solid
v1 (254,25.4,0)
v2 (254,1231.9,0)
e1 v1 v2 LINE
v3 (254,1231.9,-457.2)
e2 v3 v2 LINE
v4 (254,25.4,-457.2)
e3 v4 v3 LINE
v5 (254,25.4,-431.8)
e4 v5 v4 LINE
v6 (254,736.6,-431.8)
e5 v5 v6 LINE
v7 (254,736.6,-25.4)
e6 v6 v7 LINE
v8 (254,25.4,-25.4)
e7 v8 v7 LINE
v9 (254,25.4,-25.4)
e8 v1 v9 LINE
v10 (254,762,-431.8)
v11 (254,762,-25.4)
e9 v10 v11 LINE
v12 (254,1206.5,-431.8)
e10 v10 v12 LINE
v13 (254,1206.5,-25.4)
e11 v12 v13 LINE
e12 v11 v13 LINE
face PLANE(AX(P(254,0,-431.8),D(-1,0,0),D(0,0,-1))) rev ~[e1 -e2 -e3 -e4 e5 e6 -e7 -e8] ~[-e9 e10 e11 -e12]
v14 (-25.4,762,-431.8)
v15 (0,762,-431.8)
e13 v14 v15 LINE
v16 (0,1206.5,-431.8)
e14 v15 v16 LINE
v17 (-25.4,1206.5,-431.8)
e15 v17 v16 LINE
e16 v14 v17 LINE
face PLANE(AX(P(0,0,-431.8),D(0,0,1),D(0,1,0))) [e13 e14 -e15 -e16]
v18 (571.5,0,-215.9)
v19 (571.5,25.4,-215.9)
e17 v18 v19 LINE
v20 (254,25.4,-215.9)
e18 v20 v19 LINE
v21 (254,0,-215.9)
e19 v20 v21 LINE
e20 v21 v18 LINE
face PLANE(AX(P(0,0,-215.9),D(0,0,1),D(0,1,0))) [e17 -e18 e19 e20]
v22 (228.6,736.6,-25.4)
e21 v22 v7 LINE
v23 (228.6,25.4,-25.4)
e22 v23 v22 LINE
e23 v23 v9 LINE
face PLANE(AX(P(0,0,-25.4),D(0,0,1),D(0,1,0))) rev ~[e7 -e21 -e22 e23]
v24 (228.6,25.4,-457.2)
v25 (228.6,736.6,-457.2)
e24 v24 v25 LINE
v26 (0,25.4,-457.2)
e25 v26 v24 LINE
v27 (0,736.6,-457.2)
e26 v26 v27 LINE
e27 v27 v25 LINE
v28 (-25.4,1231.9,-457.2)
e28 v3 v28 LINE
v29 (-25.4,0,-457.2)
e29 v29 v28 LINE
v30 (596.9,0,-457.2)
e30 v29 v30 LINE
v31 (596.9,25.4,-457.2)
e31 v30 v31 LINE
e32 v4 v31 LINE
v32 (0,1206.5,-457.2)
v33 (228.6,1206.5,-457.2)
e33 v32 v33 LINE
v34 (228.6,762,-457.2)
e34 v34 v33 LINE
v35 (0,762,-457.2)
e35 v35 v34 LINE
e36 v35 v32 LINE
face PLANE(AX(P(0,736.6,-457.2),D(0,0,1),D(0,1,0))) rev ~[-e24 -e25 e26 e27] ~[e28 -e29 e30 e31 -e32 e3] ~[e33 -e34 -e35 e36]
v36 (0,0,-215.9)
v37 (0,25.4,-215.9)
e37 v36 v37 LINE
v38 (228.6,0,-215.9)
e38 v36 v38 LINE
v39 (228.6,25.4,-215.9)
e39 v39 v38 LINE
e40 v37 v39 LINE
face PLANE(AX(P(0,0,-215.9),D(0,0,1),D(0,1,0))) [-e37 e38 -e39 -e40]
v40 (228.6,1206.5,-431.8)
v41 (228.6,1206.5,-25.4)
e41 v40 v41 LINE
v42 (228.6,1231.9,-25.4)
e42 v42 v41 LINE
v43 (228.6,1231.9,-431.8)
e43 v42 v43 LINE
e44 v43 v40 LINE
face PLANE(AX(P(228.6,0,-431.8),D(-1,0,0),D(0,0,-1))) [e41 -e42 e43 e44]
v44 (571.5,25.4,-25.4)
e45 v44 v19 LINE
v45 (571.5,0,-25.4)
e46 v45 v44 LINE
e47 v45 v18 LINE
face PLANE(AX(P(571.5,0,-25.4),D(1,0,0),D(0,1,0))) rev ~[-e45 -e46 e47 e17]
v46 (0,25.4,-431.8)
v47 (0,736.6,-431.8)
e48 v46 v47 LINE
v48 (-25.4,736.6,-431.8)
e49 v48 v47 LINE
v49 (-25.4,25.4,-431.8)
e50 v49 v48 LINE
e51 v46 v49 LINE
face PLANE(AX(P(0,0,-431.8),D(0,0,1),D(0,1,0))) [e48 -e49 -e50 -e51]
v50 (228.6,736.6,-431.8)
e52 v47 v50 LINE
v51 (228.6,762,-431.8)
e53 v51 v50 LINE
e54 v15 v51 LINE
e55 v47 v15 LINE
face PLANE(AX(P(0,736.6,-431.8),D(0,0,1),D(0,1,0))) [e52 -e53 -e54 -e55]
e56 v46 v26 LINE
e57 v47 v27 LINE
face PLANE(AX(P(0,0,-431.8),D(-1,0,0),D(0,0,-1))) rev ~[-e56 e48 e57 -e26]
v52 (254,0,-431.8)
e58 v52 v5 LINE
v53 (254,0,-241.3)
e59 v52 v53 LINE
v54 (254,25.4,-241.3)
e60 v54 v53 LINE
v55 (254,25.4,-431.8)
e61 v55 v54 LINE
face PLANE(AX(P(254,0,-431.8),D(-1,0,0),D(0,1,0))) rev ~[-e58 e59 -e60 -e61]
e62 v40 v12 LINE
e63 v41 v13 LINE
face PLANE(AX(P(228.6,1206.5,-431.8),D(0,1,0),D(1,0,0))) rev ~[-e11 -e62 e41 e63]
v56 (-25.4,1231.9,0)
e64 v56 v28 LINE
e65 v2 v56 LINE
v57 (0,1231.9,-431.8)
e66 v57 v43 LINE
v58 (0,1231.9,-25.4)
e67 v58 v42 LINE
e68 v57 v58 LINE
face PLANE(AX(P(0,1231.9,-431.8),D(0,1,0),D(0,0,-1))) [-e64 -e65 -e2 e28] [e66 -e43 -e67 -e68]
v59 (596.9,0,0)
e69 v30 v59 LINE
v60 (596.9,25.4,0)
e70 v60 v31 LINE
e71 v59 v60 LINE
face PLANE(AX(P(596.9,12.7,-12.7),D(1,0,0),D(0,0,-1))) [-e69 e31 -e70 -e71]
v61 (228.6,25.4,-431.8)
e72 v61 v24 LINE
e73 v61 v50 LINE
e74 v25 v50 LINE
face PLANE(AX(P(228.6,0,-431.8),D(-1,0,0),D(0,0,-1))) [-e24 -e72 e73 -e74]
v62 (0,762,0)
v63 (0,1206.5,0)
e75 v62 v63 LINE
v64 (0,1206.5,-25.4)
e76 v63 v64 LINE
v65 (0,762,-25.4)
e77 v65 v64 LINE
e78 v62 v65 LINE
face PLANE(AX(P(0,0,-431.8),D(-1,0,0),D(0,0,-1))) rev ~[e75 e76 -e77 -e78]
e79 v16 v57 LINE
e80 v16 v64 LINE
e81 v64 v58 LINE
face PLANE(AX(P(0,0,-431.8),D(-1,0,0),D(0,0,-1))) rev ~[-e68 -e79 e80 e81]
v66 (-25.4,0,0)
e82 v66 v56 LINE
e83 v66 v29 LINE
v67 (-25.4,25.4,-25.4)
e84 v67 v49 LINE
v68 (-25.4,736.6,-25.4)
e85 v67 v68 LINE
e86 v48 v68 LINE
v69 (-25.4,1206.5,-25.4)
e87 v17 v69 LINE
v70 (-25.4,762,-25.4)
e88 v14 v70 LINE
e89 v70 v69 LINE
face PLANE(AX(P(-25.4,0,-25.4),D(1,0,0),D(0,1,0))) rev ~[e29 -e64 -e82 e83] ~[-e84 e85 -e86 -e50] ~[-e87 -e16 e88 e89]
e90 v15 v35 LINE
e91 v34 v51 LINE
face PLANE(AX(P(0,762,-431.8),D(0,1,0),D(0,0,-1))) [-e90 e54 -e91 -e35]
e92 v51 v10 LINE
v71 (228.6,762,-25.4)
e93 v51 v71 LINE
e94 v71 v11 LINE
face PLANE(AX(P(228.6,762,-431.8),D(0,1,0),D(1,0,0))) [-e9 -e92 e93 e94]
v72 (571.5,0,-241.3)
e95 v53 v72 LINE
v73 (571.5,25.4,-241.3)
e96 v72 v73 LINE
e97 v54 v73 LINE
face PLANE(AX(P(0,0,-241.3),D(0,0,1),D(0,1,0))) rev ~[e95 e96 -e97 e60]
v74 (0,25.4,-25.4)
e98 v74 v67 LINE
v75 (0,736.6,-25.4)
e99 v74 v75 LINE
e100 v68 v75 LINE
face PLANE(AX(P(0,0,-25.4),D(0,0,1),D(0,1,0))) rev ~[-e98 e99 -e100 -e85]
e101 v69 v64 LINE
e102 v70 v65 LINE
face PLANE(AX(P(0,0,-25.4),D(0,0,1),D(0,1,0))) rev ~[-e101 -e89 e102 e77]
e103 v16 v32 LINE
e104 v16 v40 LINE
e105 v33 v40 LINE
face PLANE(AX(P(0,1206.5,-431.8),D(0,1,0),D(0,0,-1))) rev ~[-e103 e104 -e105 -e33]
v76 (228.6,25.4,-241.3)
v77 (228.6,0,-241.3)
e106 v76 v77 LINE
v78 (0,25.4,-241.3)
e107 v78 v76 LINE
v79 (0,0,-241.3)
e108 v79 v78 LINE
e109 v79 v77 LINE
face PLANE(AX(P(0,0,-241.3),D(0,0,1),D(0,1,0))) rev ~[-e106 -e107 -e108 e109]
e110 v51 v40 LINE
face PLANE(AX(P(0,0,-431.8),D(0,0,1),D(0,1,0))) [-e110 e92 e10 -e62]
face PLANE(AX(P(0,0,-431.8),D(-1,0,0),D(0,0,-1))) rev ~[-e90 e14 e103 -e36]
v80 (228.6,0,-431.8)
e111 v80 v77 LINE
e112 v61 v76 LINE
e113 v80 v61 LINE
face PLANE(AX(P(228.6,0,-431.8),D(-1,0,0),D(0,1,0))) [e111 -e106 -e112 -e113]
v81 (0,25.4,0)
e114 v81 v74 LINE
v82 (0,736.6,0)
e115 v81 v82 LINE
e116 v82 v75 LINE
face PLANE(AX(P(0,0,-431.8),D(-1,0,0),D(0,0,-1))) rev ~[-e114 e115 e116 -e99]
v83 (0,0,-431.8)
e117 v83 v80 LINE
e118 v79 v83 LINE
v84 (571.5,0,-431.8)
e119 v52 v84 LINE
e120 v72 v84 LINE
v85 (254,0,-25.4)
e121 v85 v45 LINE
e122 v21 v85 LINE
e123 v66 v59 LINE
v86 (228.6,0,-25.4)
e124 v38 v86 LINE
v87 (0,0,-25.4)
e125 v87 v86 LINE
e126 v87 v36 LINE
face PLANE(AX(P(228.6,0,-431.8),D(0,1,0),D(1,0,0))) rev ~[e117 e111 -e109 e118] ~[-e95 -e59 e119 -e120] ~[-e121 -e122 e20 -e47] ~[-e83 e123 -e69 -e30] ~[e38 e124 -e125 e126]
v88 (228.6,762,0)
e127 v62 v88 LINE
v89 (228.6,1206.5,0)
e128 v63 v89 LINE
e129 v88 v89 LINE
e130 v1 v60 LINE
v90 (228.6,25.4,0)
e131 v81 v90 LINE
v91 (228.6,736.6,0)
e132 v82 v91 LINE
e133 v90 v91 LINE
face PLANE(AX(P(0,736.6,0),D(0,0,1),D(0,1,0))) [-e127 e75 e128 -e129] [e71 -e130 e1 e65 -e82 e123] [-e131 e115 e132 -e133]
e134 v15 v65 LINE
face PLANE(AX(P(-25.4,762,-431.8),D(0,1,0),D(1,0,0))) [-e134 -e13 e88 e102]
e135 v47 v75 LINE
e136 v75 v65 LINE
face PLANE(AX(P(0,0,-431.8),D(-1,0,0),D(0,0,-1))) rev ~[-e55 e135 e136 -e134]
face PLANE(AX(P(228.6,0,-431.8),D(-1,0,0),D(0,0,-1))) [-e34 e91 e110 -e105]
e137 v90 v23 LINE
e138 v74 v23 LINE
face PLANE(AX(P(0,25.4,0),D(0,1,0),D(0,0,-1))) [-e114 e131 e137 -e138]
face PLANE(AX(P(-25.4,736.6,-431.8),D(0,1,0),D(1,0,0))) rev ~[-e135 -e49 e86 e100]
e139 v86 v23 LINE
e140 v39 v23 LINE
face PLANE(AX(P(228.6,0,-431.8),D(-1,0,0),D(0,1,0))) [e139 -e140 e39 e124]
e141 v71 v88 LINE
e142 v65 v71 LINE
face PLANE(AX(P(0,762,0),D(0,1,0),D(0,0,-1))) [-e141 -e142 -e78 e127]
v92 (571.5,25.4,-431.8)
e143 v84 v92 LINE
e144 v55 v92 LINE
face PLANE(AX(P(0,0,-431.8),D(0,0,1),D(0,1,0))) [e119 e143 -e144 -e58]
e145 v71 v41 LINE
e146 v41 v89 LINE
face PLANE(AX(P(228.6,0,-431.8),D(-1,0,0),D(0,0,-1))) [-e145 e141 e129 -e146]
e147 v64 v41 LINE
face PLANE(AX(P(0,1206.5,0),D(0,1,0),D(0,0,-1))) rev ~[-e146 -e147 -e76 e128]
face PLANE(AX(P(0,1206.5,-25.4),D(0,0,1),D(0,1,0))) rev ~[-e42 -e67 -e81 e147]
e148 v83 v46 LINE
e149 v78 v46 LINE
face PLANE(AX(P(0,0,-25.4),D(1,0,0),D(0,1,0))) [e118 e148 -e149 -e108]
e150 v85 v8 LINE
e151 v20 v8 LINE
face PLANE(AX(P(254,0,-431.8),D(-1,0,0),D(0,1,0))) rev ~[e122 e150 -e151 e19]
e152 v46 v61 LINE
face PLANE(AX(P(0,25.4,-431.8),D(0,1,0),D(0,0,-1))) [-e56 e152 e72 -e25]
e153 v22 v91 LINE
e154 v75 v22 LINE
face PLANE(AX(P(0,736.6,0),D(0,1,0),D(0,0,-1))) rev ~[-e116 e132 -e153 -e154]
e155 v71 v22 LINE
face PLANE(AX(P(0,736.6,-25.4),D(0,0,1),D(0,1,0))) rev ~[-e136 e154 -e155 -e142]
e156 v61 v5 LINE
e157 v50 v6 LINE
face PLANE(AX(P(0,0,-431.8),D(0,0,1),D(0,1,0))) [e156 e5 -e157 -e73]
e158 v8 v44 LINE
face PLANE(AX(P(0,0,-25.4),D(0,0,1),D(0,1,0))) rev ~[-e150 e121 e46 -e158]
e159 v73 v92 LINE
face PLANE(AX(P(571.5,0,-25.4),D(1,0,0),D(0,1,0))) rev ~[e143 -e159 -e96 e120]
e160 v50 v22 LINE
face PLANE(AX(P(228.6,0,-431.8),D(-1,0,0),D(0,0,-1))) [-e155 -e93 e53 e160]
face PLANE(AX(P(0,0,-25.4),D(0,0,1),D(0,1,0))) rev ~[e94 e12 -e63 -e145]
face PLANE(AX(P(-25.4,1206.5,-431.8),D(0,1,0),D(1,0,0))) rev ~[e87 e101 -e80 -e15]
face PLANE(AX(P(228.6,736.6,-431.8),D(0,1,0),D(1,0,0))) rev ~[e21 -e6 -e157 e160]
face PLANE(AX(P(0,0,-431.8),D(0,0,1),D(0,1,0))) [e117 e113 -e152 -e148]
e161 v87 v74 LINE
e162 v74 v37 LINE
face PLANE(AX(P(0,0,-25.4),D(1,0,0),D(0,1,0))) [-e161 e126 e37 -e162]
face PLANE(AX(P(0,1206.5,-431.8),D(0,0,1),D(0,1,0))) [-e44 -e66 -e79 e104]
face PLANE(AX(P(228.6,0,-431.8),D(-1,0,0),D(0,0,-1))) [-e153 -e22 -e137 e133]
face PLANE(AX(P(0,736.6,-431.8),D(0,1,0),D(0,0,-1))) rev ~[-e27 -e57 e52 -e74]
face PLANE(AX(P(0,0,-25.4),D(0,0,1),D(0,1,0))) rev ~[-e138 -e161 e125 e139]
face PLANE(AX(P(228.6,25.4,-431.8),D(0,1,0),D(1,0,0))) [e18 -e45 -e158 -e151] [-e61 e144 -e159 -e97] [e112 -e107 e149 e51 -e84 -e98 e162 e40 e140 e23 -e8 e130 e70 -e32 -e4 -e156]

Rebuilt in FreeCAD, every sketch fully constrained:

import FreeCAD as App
import Part
import Sketcher
Q = App.Units.Quantity

doc = App.newDocument("Part")
body = doc.addObject("PartDesign::Body", "Body")

# Sketch on XZ plane
sketch1 = body.newObject("Sketcher::SketchObject", "Sketch")
sketch1.AttachmentSupport = (doc.getObject("XZ_Plane"), [""])
sketch1.MapMode = "FlatFace"
sketch1.addGeometry(Part.LineSegment(App.Vector(-25.4, -25.4, 0), App.Vector(-25.4, 0, 0)), False)
sketch1.addGeometry(Part.LineSegment(App.Vector(-25.4, 0, 0), App.Vector(0, 0, 0)), False)
sketch1.addGeometry(Part.LineSegment(App.Vector(0, 0, 0), App.Vector(0, -25.4, 0)), False)
sketch1.addGeometry(Part.LineSegment(App.Vector(0, -25.4, 0), App.Vector(-25.4, -25.4, 0)), False)
sketch1.addConstraint(Sketcher.Constraint("Coincident", 0, 2, 1, 1))
sketch1.addConstraint(Sketcher.Constraint("Coincident", 1, 2, 2, 1))
sketch1.addConstraint(Sketcher.Constraint("Coincident", 2, 2, 3, 1))
sketch1.addConstraint(Sketcher.Constraint("Coincident", 3, 2, 0, 1))
sketch1.addConstraint(Sketcher.Constraint("Vertical", 0))
sketch1.addConstraint(Sketcher.Constraint("Horizontal", 1))
sketch1.addConstraint(Sketcher.Constraint("Vertical", 2))
sketch1.addConstraint(Sketcher.Constraint("Horizontal", 3))
sketch1.addConstraint(Sketcher.Constraint("Coincident", 1, 2, -1, 1))
sketch1.addConstraint(Sketcher.Constraint("Equal", 3, 0))
sketch1.addConstraint(Sketcher.Constraint("DistanceX", 1, 1, 1, 2, Q("1 in")))
pad1 = body.newObject("PartDesign::Pad", "Pad")
pad1.Profile = sketch1
pad1.Length = Q("48.5 in")
pad1.Reversed = True
body2 = doc.addObject("PartDesign::Body", "Body001")

# Sketch on XZ plane
sketch2 = body2.newObject("Sketcher::SketchObject", "Sketch001")
sketch2.AttachmentSupport = (doc.getObject("XZ_Plane001"), [""])
sketch2.MapMode = "FlatFace"
sketch2.addGeometry(Part.LineSegment(App.Vector(-25.4, -457.2, 0), App.Vector(-25.4, -431.8, 0)), False)
sketch2.addGeometry(Part.LineSegment(App.Vector(-25.4, -431.8, 0), App.Vector(0, -431.8, 0)), False)
sketch2.addGeometry(Part.LineSegment(App.Vector(0, -431.8, 0), App.Vector(0, -457.2, 0)), False)
sketch2.addGeometry(Part.LineSegment(App.Vector(0, -457.2, 0), App.Vector(-25.4, -457.2, 0)), False)
sketch2.addConstraint(Sketcher.Constraint("Coincident", 0, 2, 1, 1))
sketch2.addConstraint(Sketcher.Constraint("Coincident", 1, 2, 2, 1))
sketch2.addConstraint(Sketcher.Constraint("Coincident", 2, 2, 3, 1))
sketch2.addConstraint(Sketcher.Constraint("Coincident", 3, 2, 0, 1))
sketch2.addConstraint(Sketcher.Constraint("Vertical", 0))
sketch2.addConstraint(Sketcher.Constraint("Horizontal", 1))
sketch2.addConstraint(Sketcher.Constraint("Vertical", 2))
sketch2.addConstraint(Sketcher.Constraint("Horizontal", 3))
sketch2.addConstraint(Sketcher.Constraint("PointOnObject", 1, 2, -2))
sketch2.addConstraint(Sketcher.Constraint("Equal", 3, 0))
sketch2.addConstraint(Sketcher.Constraint("DistanceX", 1, 1, 1, 2, Q("1 in")))
sketch2.addConstraint(Sketcher.Constraint("DistanceY", 0, 2, -1, 1, Q("17 in")))
pad2 = body2.newObject("PartDesign::Pad", "Pad001")
pad2.Profile = sketch2
pad2.Length = Q("48.5 in")
pad2.Reversed = True
body3 = doc.addObject("PartDesign::Body", "Body002")

# Sketch on XZ plane
sketch3 = body3.newObject("Sketcher::SketchObject", "Sketch002")
sketch3.AttachmentSupport = (doc.getObject("XZ_Plane002"), [""])
sketch3.MapMode = "FlatFace"
sketch3.addGeometry(Part.LineSegment(App.Vector(228.6, -25.4, 0), App.Vector(228.6, 0, 0)), False)
sketch3.addGeometry(Part.LineSegment(App.Vector(228.6, 0, 0), App.Vector(254, 0, 0)), False)
sketch3.addGeometry(Part.LineSegment(App.Vector(254, 0, 0), App.Vector(254, -25.4, 0)), False)
sketch3.addGeometry(Part.LineSegment(App.Vector(254, -25.4, 0), App.Vector(228.6, -25.4, 0)), False)
sketch3.addConstraint(Sketcher.Constraint("Coincident", 0, 2, 1, 1))
sketch3.addConstraint(Sketcher.Constraint("Coincident", 1, 2, 2, 1))
sketch3.addConstraint(Sketcher.Constraint("Coincident", 2, 2, 3, 1))
sketch3.addConstraint(Sketcher.Constraint("Coincident", 3, 2, 0, 1))
sketch3.addConstraint(Sketcher.Constraint("Vertical", 0))
sketch3.addConstraint(Sketcher.Constraint("Horizontal", 1))
sketch3.addConstraint(Sketcher.Constraint("Vertical", 2))
sketch3.addConstraint(Sketcher.Constraint("Horizontal", 3))
sketch3.addConstraint(Sketcher.Constraint("PointOnObject", 0, 2, -1))
sketch3.addConstraint(Sketcher.Constraint("Equal", 3, 0))
sketch3.addConstraint(Sketcher.Constraint("DistanceX", 1, 1, 1, 2, Q("1 in")))
sketch3.addConstraint(Sketcher.Constraint("DistanceX", -1, 1, 0, 2, Q("9 in")))
pad3 = body3.newObject("PartDesign::Pad", "Pad002")
pad3.Profile = sketch3
pad3.Length = Q("48.5 in")
pad3.Reversed = True
body4 = doc.addObject("PartDesign::Body", "Body003")

# Sketch on XZ plane
sketch4 = body4.newObject("Sketcher::SketchObject", "Sketch003")
sketch4.AttachmentSupport = (doc.getObject("XZ_Plane003"), [""])
sketch4.MapMode = "FlatFace"
sketch4.addGeometry(Part.LineSegment(App.Vector(228.6, -457.2, 0), App.Vector(228.6, -431.8, 0)), False)
sketch4.addGeometry(Part.LineSegment(App.Vector(228.6, -431.8, 0), App.Vector(254, -431.8, 0)), False)
sketch4.addGeometry(Part.LineSegment(App.Vector(254, -431.8, 0), App.Vector(254, -457.2, 0)), False)
sketch4.addGeometry(Part.LineSegment(App.Vector(254, -457.2, 0), App.Vector(228.6, -457.2, 0)), False)
sketch4.addConstraint(Sketcher.Constraint("Coincident", 0, 2, 1, 1))
sketch4.addConstraint(Sketcher.Constraint("Coincident", 1, 2, 2, 1))
sketch4.addConstraint(Sketcher.Constraint("Coincident", 2, 2, 3, 1))
sketch4.addConstraint(Sketcher.Constraint("Coincident", 3, 2, 0, 1))
sketch4.addConstraint(Sketcher.Constraint("Vertical", 0))
sketch4.addConstraint(Sketcher.Constraint("Horizontal", 1))
sketch4.addConstraint(Sketcher.Constraint("Vertical", 2))
sketch4.addConstraint(Sketcher.Constraint("Horizontal", 3))
sketch4.addConstraint(Sketcher.Constraint("Equal", 3, 0))
sketch4.addConstraint(Sketcher.Constraint("DistanceX", 1, 1, 1, 2, Q("1 in")))
sketch4.addConstraint(Sketcher.Constraint("DistanceX", -1, 1, 0, 2, Q("9 in")))
sketch4.addConstraint(Sketcher.Constraint("DistanceY", 0, 2, -1, 1, Q("17 in")))
pad4 = body4.newObject("PartDesign::Pad", "Pad003")
pad4.Profile = sketch4
pad4.Length = Q("48.5 in")
pad4.Reversed = True
body.AllowCompound = True
doc.recompute()

boolean = body.newObject("PartDesign::Boolean", "Boolean")
boolean.Type = "Fuse"
boolean.addObjects([body2])
doc.recompute()

boolean2 = body.newObject("PartDesign::Boolean", "Boolean001")
boolean2.Type = "Fuse"
boolean2.addObjects([body3])
doc.recompute()

boolean3 = body.newObject("PartDesign::Boolean", "Boolean002")
boolean3.Type = "Fuse"
boolean3.addObjects([body4])

# Sketch on YZ plane
sketch5 = body.newObject("Sketcher::SketchObject", "Sketch004")
sketch5.AttachmentSupport = (doc.getObject("YZ_Plane"), [""])
sketch5.MapMode = "FlatFace"
sketch5.addGeometry(Part.LineSegment(App.Vector(25.4, 0, 0), App.Vector(0, 0, 0)), False)
sketch5.addGeometry(Part.LineSegment(App.Vector(0, 0, 0), App.Vector(0, -25.4, 0)), False)
sketch5.addGeometry(Part.LineSegment(App.Vector(0, -25.4, 0), App.Vector(25.4, -25.4, 0)), False)
sketch5.addGeometry(Part.LineSegment(App.Vector(25.4, -25.4, 0), App.Vector(25.4, 0, 0)), False)
sketch5.addGeometry(Part.LineSegment(App.Vector(25.4, -431.8, 0), App.Vector(0, -431.8, 0)), False)
sketch5.addGeometry(Part.LineSegment(App.Vector(0, -431.8, 0), App.Vector(0, -457.2, 0)), False)
sketch5.addGeometry(Part.LineSegment(App.Vector(0, -457.2, 0), App.Vector(25.4, -457.2, 0)), False)
sketch5.addGeometry(Part.LineSegment(App.Vector(25.4, -457.2, 0), App.Vector(25.4, -431.8, 0)), False)
sketch5.addGeometry(Part.LineSegment(App.Vector(25.4, -215.9, 0), App.Vector(0, -215.9, 0)), False)
sketch5.addGeometry(Part.LineSegment(App.Vector(0, -215.9, 0), App.Vector(0, -241.3, 0)), False)
sketch5.addGeometry(Part.LineSegment(App.Vector(0, -241.3, 0), App.Vector(25.4, -241.3, 0)), False)
sketch5.addGeometry(Part.LineSegment(App.Vector(25.4, -241.3, 0), App.Vector(25.4, -215.9, 0)), False)
sketch5.addConstraint(Sketcher.Constraint("Coincident", 0, 2, 1, 1))
sketch5.addConstraint(Sketcher.Constraint("Coincident", 1, 2, 2, 1))
sketch5.addConstraint(Sketcher.Constraint("Coincident", 2, 2, 3, 1))
sketch5.addConstraint(Sketcher.Constraint("Coincident", 3, 2, 0, 1))
sketch5.addConstraint(Sketcher.Constraint("Coincident", 4, 2, 5, 1))
sketch5.addConstraint(Sketcher.Constraint("Coincident", 5, 2, 6, 1))
sketch5.addConstraint(Sketcher.Constraint("Coincident", 6, 2, 7, 1))
sketch5.addConstraint(Sketcher.Constraint("Coincident", 7, 2, 4, 1))
sketch5.addConstraint(Sketcher.Constraint("Coincident", 8, 2, 9, 1))
sketch5.addConstraint(Sketcher.Constraint("Coincident", 9, 2, 10, 1))
sketch5.addConstraint(Sketcher.Constraint("Coincident", 10, 2, 11, 1))
sketch5.addConstraint(Sketcher.Constraint("Coincident", 11, 2, 8, 1))
sketch5.addConstraint(Sketcher.Constraint("Horizontal", 0))
sketch5.addConstraint(Sketcher.Constraint("Vertical", 1))
sketch5.addConstraint(Sketcher.Constraint("Horizontal", 2))
sketch5.addConstraint(Sketcher.Constraint("Vertical", 3))
sketch5.addConstraint(Sketcher.Constraint("Horizontal", 4))
sketch5.addConstraint(Sketcher.Constraint("Vertical", 5))
sketch5.addConstraint(Sketcher.Constraint("Horizontal", 6))
sketch5.addConstraint(Sketcher.Constraint("Vertical", 7))
sketch5.addConstraint(Sketcher.Constraint("Horizontal", 8))
sketch5.addConstraint(Sketcher.Constraint("Vertical", 9))
sketch5.addConstraint(Sketcher.Constraint("Horizontal", 10))
sketch5.addConstraint(Sketcher.Constraint("Vertical", 11))
sketch5.addConstraint(Sketcher.Constraint("Coincident", 0, 2, -1, 1))
sketch5.addConstraint(Sketcher.Constraint("PointOnObject", 4, 2, -2))
sketch5.addConstraint(Sketcher.Constraint("PointOnObject", 8, 2, -2))
sketch5.addConstraint(Sketcher.Constraint("Vertical", 3, 2, 6, 2))
sketch5.addConstraint(Sketcher.Constraint("Vertical", 7, 2, 10, 2))
sketch5.addConstraint(Sketcher.Constraint("Equal", 10, 1))
sketch5.addConstraint(Sketcher.Constraint("Equal", 3, 5))
sketch5.addConstraint(Sketcher.Constraint("Equal", 7, 9))
sketch5.addConstraint(Sketcher.Constraint("DistanceX", 0, 2, 0, 1, Q("1 in")))
sketch5.addConstraint(Sketcher.Constraint("DistanceY", 4, 2, -1, 1, Q("17 in")))
sketch5.addConstraint(Sketcher.Constraint("DistanceY", 8, 2, -1, 1, Q("8.5 in")))
pad5 = body.newObject("PartDesign::Pad", "Pad004")
pad5.Profile = sketch5
pad5.Length = Q("23.5 in")

# Sketch on XY plane
sketch6 = body.newObject("Sketcher::SketchObject", "Sketch005")
sketch6.AttachmentSupport = (doc.getObject("XY_Plane"), [""])
sketch6.MapMode = "FlatFace"
sketch6.AttachmentOffset = App.Placement(App.Vector(0, 0, -1 * 25.4), App.Rotation())
sketch6.addGeometry(Part.LineSegment(App.Vector(0, 25.4, 0), App.Vector(0, 0, 0)), False)
sketch6.addGeometry(Part.LineSegment(App.Vector(0, 0, 0), App.Vector(-25.4, 0, 0)), False)
sketch6.addGeometry(Part.LineSegment(App.Vector(-25.4, 0, 0), App.Vector(-25.4, 25.4, 0)), False)
sketch6.addGeometry(Part.LineSegment(App.Vector(-25.4, 25.4, 0), App.Vector(0, 25.4, 0)), False)
sketch6.addGeometry(Part.LineSegment(App.Vector(596.9, 25.4, 0), App.Vector(596.9, 0, 0)), False)
sketch6.addGeometry(Part.LineSegment(App.Vector(596.9, 0, 0), App.Vector(571.5, 0, 0)), False)
sketch6.addGeometry(Part.LineSegment(App.Vector(571.5, 0, 0), App.Vector(571.5, 25.4, 0)), False)
sketch6.addGeometry(Part.LineSegment(App.Vector(571.5, 25.4, 0), App.Vector(596.9, 25.4, 0)), False)
sketch6.addConstraint(Sketcher.Constraint("Coincident", 0, 2, 1, 1))
sketch6.addConstraint(Sketcher.Constraint("Coincident", 1, 2, 2, 1))
sketch6.addConstraint(Sketcher.Constraint("Coincident", 2, 2, 3, 1))
sketch6.addConstraint(Sketcher.Constraint("Coincident", 3, 2, 0, 1))
sketch6.addConstraint(Sketcher.Constraint("Coincident", 4, 2, 5, 1))
sketch6.addConstraint(Sketcher.Constraint("Coincident", 5, 2, 6, 1))
sketch6.addConstraint(Sketcher.Constraint("Coincident", 6, 2, 7, 1))
sketch6.addConstraint(Sketcher.Constraint("Coincident", 7, 2, 4, 1))
sketch6.addConstraint(Sketcher.Constraint("Vertical", 0))
sketch6.addConstraint(Sketcher.Constraint("Horizontal", 1))
sketch6.addConstraint(Sketcher.Constraint("Vertical", 2))
sketch6.addConstraint(Sketcher.Constraint("Horizontal", 3))
sketch6.addConstraint(Sketcher.Constraint("Vertical", 4))
sketch6.addConstraint(Sketcher.Constraint("Horizontal", 5))
sketch6.addConstraint(Sketcher.Constraint("Vertical", 6))
sketch6.addConstraint(Sketcher.Constraint("Horizontal", 7))
sketch6.addConstraint(Sketcher.Constraint("Coincident", 0, 2, -1, 1))
sketch6.addConstraint(Sketcher.Constraint("PointOnObject", 4, 2, -1))
sketch6.addConstraint(Sketcher.Constraint("Horizontal", 3, 2, 6, 2))
sketch6.addConstraint(Sketcher.Constraint("Equal", 3, 5))
sketch6.addConstraint(Sketcher.Constraint("Equal", 7, 0))
sketch6.addConstraint(Sketcher.Constraint("DistanceX", 1, 2, 1, 1, Q("1 in")))
sketch6.addConstraint(Sketcher.Constraint("DistanceX", -1, 1, 4, 2, Q("23.5 in")))
pad6 = body.newObject("PartDesign::Pad", "Pad005")
pad6.Profile = sketch6
pad6.Length = Q("16 in")
pad6.Reversed = True

# Sketch on XY plane
sketch7 = body.newObject("Sketcher::SketchObject", "Sketch006")
sketch7.AttachmentSupport = (doc.getObject("XY_Plane"), [""])
sketch7.MapMode = "FlatFace"
sketch7.AttachmentOffset = App.Placement(App.Vector(0, 0, -17 * 25.4), App.Rotation())
sketch7.addGeometry(Part.LineSegment(App.Vector(228.6, 25.4, 0), App.Vector(228.6, 0, 0)), False)
sketch7.addGeometry(Part.LineSegment(App.Vector(228.6, 0, 0), App.Vector(254, 0, 0)), False)
sketch7.addGeometry(Part.LineSegment(App.Vector(254, 0, 0), App.Vector(254, 25.4, 0)), False)
sketch7.addGeometry(Part.LineSegment(App.Vector(254, 25.4, 0), App.Vector(228.6, 25.4, 0)), False)
sketch7.addGeometry(Part.LineSegment(App.Vector(228.6, 1231.9, 0), App.Vector(228.6, 1206.5, 0)), False)
sketch7.addGeometry(Part.LineSegment(App.Vector(228.6, 1206.5, 0), App.Vector(254, 1206.5, 0)), False)
sketch7.addGeometry(Part.LineSegment(App.Vector(254, 1206.5, 0), App.Vector(254, 1231.9, 0)), False)
sketch7.addGeometry(Part.LineSegment(App.Vector(254, 1231.9, 0), App.Vector(228.6, 1231.9, 0)), False)
sketch7.addGeometry(Part.LineSegment(App.Vector(-25.4, 1231.9, 0), App.Vector(-25.4, 1206.5, 0)), False)
sketch7.addGeometry(Part.LineSegment(App.Vector(-25.4, 1206.5, 0), App.Vector(0, 1206.5, 0)), False)
sketch7.addGeometry(Part.LineSegment(App.Vector(0, 1206.5, 0), App.Vector(0, 1231.9, 0)), False)
sketch7.addGeometry(Part.LineSegment(App.Vector(0, 1231.9, 0), App.Vector(-25.4, 1231.9, 0)), False)
sketch7.addGeometry(Part.LineSegment(App.Vector(228.6, 762, 0), App.Vector(228.6, 736.6, 0)), False)
sketch7.addGeometry(Part.LineSegment(App.Vector(228.6, 736.6, 0), App.Vector(254, 736.6, 0)), False)
sketch7.addGeometry(Part.LineSegment(App.Vector(254, 736.6, 0), App.Vector(254, 762, 0)), False)
sketch7.addGeometry(Part.LineSegment(App.Vector(254, 762, 0), App.Vector(228.6, 762, 0)), False)
sketch7.addGeometry(Part.LineSegment(App.Vector(-25.4, 762, 0), App.Vector(-25.4, 736.6, 0)), False)
sketch7.addGeometry(Part.LineSegment(App.Vector(-25.4, 736.6, 0), App.Vector(0, 736.6, 0)), False)
sketch7.addGeometry(Part.LineSegment(App.Vector(0, 736.6, 0), App.Vector(0, 762, 0)), False)
sketch7.addGeometry(Part.LineSegment(App.Vector(0, 762, 0), App.Vector(-25.4, 762, 0)), False)
sketch7.addConstraint(Sketcher.Constraint("Coincident", 0, 2, 1, 1))
sketch7.addConstraint(Sketcher.Constraint("Coincident", 1, 2, 2, 1))
sketch7.addConstraint(Sketcher.Constraint("Coincident", 2, 2, 3, 1))
sketch7.addConstraint(Sketcher.Constraint("Coincident", 3, 2, 0, 1))
sketch7.addConstraint(Sketcher.Constraint("Coincident", 4, 2, 5, 1))
sketch7.addConstraint(Sketcher.Constraint("Coincident", 5, 2, 6, 1))
sketch7.addConstraint(Sketcher.Constraint("Coincident", 6, 2, 7, 1))
sketch7.addConstraint(Sketcher.Constraint("Coincident", 7, 2, 4, 1))
sketch7.addConstraint(Sketcher.Constraint("Coincident", 8, 2, 9, 1))
sketch7.addConstraint(Sketcher.Constraint("Coincident", 9, 2, 10, 1))
sketch7.addConstraint(Sketcher.Constraint("Coincident", 10, 2, 11, 1))
sketch7.addConstraint(Sketcher.Constraint("Coincident", 11, 2, 8, 1))
sketch7.addConstraint(Sketcher.Constraint("Coincident", 12, 2, 13, 1))
sketch7.addConstraint(Sketcher.Constraint("Coincident", 13, 2, 14, 1))
sketch7.addConstraint(Sketcher.Constraint("Coincident", 14, 2, 15, 1))
sketch7.addConstraint(Sketcher.Constraint("Coincident", 15, 2, 12, 1))
sketch7.addConstraint(Sketcher.Constraint("Coincident", 16, 2, 17, 1))
sketch7.addConstraint(Sketcher.Constraint("Coincident", 17, 2, 18, 1))
sketch7.addConstraint(Sketcher.Constraint("Coincident", 18, 2, 19, 1))
sketch7.addConstraint(Sketcher.Constraint("Coincident", 19, 2, 16, 1))
sketch7.addConstraint(Sketcher.Constraint("Vertical", 0))
sketch7.addConstraint(Sketcher.Constraint("Horizontal", 1))
sketch7.addConstraint(Sketcher.Constraint("Vertical", 2))
sketch7.addConstraint(Sketcher.Constraint("Horizontal", 3))
sketch7.addConstraint(Sketcher.Constraint("Vertical", 4))
sketch7.addConstraint(Sketcher.Constraint("Horizontal", 5))
sketch7.addConstraint(Sketcher.Constraint("Vertical", 6))
sketch7.addConstraint(Sketcher.Constraint("Horizontal", 7))
sketch7.addConstraint(Sketcher.Constraint("Vertical", 8))
sketch7.addConstraint(Sketcher.Constraint("Horizontal", 9))
sketch7.addConstraint(Sketcher.Constraint("Vertical", 10))
sketch7.addConstraint(Sketcher.Constraint("Horizontal", 11))
sketch7.addConstraint(Sketcher.Constraint("Vertical", 12))
sketch7.addConstraint(Sketcher.Constraint("Horizontal", 13))
sketch7.addConstraint(Sketcher.Constraint("Vertical", 14))
sketch7.addConstraint(Sketcher.Constraint("Horizontal", 15))
sketch7.addConstraint(Sketcher.Constraint("Vertical", 16))
sketch7.addConstraint(Sketcher.Constraint("Horizontal", 17))
sketch7.addConstraint(Sketcher.Constraint("Vertical", 18))
sketch7.addConstraint(Sketcher.Constraint("Horizontal", 19))
sketch7.addConstraint(Sketcher.Constraint("PointOnObject", 0, 2, -1))
sketch7.addConstraint(Sketcher.Constraint("PointOnObject", 9, 2, -2))
sketch7.addConstraint(Sketcher.Constraint("PointOnObject", 17, 2, -2))
sketch7.addConstraint(Sketcher.Constraint("Horizontal", 5, 2, 8, 2))
sketch7.addConstraint(Sketcher.Constraint("Horizontal", 7, 2, 10, 2))
sketch7.addConstraint(Sketcher.Constraint("Horizontal", 13, 2, 16, 2))
sketch7.addConstraint(Sketcher.Constraint("Horizontal", 15, 2, 18, 2))
sketch7.addConstraint(Sketcher.Constraint("Vertical", 3, 2, 4, 2))
sketch7.addConstraint(Sketcher.Constraint("Vertical", 2, 2, 5, 2))
sketch7.addConstraint(Sketcher.Constraint("Vertical", 7, 2, 12, 2))
sketch7.addConstraint(Sketcher.Constraint("Vertical", 6, 2, 13, 2))
sketch7.addConstraint(Sketcher.Constraint("Vertical", 11, 2, 16, 2))
sketch7.addConstraint(Sketcher.Constraint("Equal", 7, 9))
sketch7.addConstraint(Sketcher.Constraint("Equal", 19, 0))
sketch7.addConstraint(Sketcher.Constraint("Equal", 2, 4))
sketch7.addConstraint(Sketcher.Constraint("Equal", 10, 12))
sketch7.addConstraint(Sketcher.Constraint("DistanceX", 1, 1, 1, 2, Q("1 in")))
sketch7.addConstraint(Sketcher.Constraint("DistanceX", -1, 1, 0, 2, Q("9 in")))
sketch7.addConstraint(Sketcher.Constraint("DistanceY", -1, 1, 12, 2, Q("29 in")))
sketch7.addConstraint(Sketcher.Constraint("DistanceY", -1, 1, 4, 2, Q("47.5 in")))
pad7 = body.newObject("PartDesign::Pad", "Pad006")
pad7.Profile = sketch7
pad7.Length = Q("16 in")

# Sketch on YZ plane
sketch8 = body.newObject("Sketcher::SketchObject", "Sketch007")
sketch8.AttachmentSupport = (doc.getObject("YZ_Plane"), [""])
sketch8.MapMode = "FlatFace"
sketch8.addGeometry(Part.LineSegment(App.Vector(1231.9, 0, 0), App.Vector(1206.5, 0, 0)), False)
sketch8.addGeometry(Part.LineSegment(App.Vector(1206.5, 0, 0), App.Vector(1206.5, -25.4, 0)), False)
sketch8.addGeometry(Part.LineSegment(App.Vector(1206.5, -25.4, 0), App.Vector(1231.9, -25.4, 0)), False)
sketch8.addGeometry(Part.LineSegment(App.Vector(1231.9, -25.4, 0), App.Vector(1231.9, 0, 0)), False)
sketch8.addConstraint(Sketcher.Constraint("Coincident", 0, 2, 1, 1))
sketch8.addConstraint(Sketcher.Constraint("Coincident", 1, 2, 2, 1))
sketch8.addConstraint(Sketcher.Constraint("Coincident", 2, 2, 3, 1))
sketch8.addConstraint(Sketcher.Constraint("Coincident", 3, 2, 0, 1))
sketch8.addConstraint(Sketcher.Constraint("Horizontal", 0))
sketch8.addConstraint(Sketcher.Constraint("Vertical", 1))
sketch8.addConstraint(Sketcher.Constraint("Horizontal", 2))
sketch8.addConstraint(Sketcher.Constraint("Vertical", 3))
sketch8.addConstraint(Sketcher.Constraint("PointOnObject", 0, 2, -1))
sketch8.addConstraint(Sketcher.Constraint("Equal", 2, 1))
sketch8.addConstraint(Sketcher.Constraint("DistanceX", 0, 2, 0, 1, Q("1 in")))
sketch8.addConstraint(Sketcher.Constraint("DistanceX", -1, 1, 0, 2, Q("47.5 in")))
pad8 = body.newObject("PartDesign::Pad", "Pad007")
pad8.Profile = sketch8
pad8.Type = "UpToFirst"

# Sketch on YZ plane
sketch9 = body.newObject("Sketcher::SketchObject", "Sketch008")
sketch9.AttachmentSupport = (doc.getObject("YZ_Plane"), [""])
sketch9.MapMode = "FlatFace"
sketch9.addGeometry(Part.LineSegment(App.Vector(1231.9, -431.8, 0), App.Vector(1206.5, -431.8, 0)), False)
sketch9.addGeometry(Part.LineSegment(App.Vector(1206.5, -431.8, 0), App.Vector(1206.5, -457.2, 0)), False)
sketch9.addGeometry(Part.LineSegment(App.Vector(1206.5, -457.2, 0), App.Vector(1231.9, -457.2, 0)), False)
sketch9.addGeometry(Part.LineSegment(App.Vector(1231.9, -457.2, 0), App.Vector(1231.9, -431.8, 0)), False)
sketch9.addConstraint(Sketcher.Constraint("Coincident", 0, 2, 1, 1))
sketch9.addConstraint(Sketcher.Constraint("Coincident", 1, 2, 2, 1))
sketch9.addConstraint(Sketcher.Constraint("Coincident", 2, 2, 3, 1))
sketch9.addConstraint(Sketcher.Constraint("Coincident", 3, 2, 0, 1))
sketch9.addConstraint(Sketcher.Constraint("Horizontal", 0))
sketch9.addConstraint(Sketcher.Constraint("Vertical", 1))
sketch9.addConstraint(Sketcher.Constraint("Horizontal", 2))
sketch9.addConstraint(Sketcher.Constraint("Vertical", 3))
sketch9.addConstraint(Sketcher.Constraint("Equal", 2, 1))
sketch9.addConstraint(Sketcher.Constraint("DistanceX", 0, 2, 0, 1, Q("1 in")))
sketch9.addConstraint(Sketcher.Constraint("DistanceY", 0, 2, -1, 1, Q("17 in")))
sketch9.addConstraint(Sketcher.Constraint("DistanceX", -1, 1, 0, 2, Q("47.5 in")))
pad9 = body.newObject("PartDesign::Pad", "Pad008")
pad9.Profile = sketch9
pad9.Type = "UpToFirst"

# Sketch on YZ plane
sketch10 = body.newObject("Sketcher::SketchObject", "Sketch009")
sketch10.AttachmentSupport = (doc.getObject("YZ_Plane"), [""])
sketch10.MapMode = "FlatFace"
sketch10.addGeometry(Part.LineSegment(App.Vector(762, -431.8, 0), App.Vector(736.6, -431.8, 0)), False)
sketch10.addGeometry(Part.LineSegment(App.Vector(736.6, -431.8, 0), App.Vector(736.6, -457.2, 0)), False)
sketch10.addGeometry(Part.LineSegment(App.Vector(736.6, -457.2, 0), App.Vector(762, -457.2, 0)), False)
sketch10.addGeometry(Part.LineSegment(App.Vector(762, -457.2, 0), App.Vector(762, -431.8, 0)), False)
sketch10.addConstraint(Sketcher.Constraint("Coincident", 0, 2, 1, 1))
sketch10.addConstraint(Sketcher.Constraint("Coincident", 1, 2, 2, 1))
sketch10.addConstraint(Sketcher.Constraint("Coincident", 2, 2, 3, 1))
sketch10.addConstraint(Sketcher.Constraint("Coincident", 3, 2, 0, 1))
sketch10.addConstraint(Sketcher.Constraint("Horizontal", 0))
sketch10.addConstraint(Sketcher.Constraint("Vertical", 1))
sketch10.addConstraint(Sketcher.Constraint("Horizontal", 2))
sketch10.addConstraint(Sketcher.Constraint("Vertical", 3))
sketch10.addConstraint(Sketcher.Constraint("Equal", 2, 1))
sketch10.addConstraint(Sketcher.Constraint("DistanceX", 0, 2, 0, 1, Q("1 in")))
sketch10.addConstraint(Sketcher.Constraint("DistanceX", -1, 1, 0, 2, Q("29 in")))
sketch10.addConstraint(Sketcher.Constraint("DistanceY", 0, 2, -1, 1, Q("17 in")))
pad10 = body.newObject("PartDesign::Pad", "Pad009")
pad10.Profile = sketch10
pad10.Type = "UpToFirst"

# Sketch on YZ plane
sketch11 = body.newObject("Sketcher::SketchObject", "Sketch010")
sketch11.AttachmentSupport = (doc.getObject("YZ_Plane"), [""])
sketch11.MapMode = "FlatFace"
sketch11.addGeometry(Part.LineSegment(App.Vector(762, 0, 0), App.Vector(736.6, 0, 0)), False)
sketch11.addGeometry(Part.LineSegment(App.Vector(736.6, 0, 0), App.Vector(736.6, -25.4, 0)), False)
sketch11.addGeometry(Part.LineSegment(App.Vector(736.6, -25.4, 0), App.Vector(762, -25.4, 0)), False)
sketch11.addGeometry(Part.LineSegment(App.Vector(762, -25.4, 0), App.Vector(762, 0, 0)), False)
sketch11.addConstraint(Sketcher.Constraint("Coincident", 0, 2, 1, 1))
sketch11.addConstraint(Sketcher.Constraint("Coincident", 1, 2, 2, 1))
sketch11.addConstraint(Sketcher.Constraint("Coincident", 2, 2, 3, 1))
sketch11.addConstraint(Sketcher.Constraint("Coincident", 3, 2, 0, 1))
sketch11.addConstraint(Sketcher.Constraint("Horizontal", 0))
sketch11.addConstraint(Sketcher.Constraint("Vertical", 1))
sketch11.addConstraint(Sketcher.Constraint("Horizontal", 2))
sketch11.addConstraint(Sketcher.Constraint("Vertical", 3))
sketch11.addConstraint(Sketcher.Constraint("PointOnObject", 0, 2, -1))
sketch11.addConstraint(Sketcher.Constraint("Equal", 2, 1))
sketch11.addConstraint(Sketcher.Constraint("DistanceX", 0, 2, 0, 1, Q("1 in")))
sketch11.addConstraint(Sketcher.Constraint("DistanceX", -1, 1, 0, 2, Q("29 in")))
pad11 = body.newObject("PartDesign::Pad", "Pad010")
pad11.Profile = sketch11
pad11.Type = "UpToFirst"

doc.recompute()
